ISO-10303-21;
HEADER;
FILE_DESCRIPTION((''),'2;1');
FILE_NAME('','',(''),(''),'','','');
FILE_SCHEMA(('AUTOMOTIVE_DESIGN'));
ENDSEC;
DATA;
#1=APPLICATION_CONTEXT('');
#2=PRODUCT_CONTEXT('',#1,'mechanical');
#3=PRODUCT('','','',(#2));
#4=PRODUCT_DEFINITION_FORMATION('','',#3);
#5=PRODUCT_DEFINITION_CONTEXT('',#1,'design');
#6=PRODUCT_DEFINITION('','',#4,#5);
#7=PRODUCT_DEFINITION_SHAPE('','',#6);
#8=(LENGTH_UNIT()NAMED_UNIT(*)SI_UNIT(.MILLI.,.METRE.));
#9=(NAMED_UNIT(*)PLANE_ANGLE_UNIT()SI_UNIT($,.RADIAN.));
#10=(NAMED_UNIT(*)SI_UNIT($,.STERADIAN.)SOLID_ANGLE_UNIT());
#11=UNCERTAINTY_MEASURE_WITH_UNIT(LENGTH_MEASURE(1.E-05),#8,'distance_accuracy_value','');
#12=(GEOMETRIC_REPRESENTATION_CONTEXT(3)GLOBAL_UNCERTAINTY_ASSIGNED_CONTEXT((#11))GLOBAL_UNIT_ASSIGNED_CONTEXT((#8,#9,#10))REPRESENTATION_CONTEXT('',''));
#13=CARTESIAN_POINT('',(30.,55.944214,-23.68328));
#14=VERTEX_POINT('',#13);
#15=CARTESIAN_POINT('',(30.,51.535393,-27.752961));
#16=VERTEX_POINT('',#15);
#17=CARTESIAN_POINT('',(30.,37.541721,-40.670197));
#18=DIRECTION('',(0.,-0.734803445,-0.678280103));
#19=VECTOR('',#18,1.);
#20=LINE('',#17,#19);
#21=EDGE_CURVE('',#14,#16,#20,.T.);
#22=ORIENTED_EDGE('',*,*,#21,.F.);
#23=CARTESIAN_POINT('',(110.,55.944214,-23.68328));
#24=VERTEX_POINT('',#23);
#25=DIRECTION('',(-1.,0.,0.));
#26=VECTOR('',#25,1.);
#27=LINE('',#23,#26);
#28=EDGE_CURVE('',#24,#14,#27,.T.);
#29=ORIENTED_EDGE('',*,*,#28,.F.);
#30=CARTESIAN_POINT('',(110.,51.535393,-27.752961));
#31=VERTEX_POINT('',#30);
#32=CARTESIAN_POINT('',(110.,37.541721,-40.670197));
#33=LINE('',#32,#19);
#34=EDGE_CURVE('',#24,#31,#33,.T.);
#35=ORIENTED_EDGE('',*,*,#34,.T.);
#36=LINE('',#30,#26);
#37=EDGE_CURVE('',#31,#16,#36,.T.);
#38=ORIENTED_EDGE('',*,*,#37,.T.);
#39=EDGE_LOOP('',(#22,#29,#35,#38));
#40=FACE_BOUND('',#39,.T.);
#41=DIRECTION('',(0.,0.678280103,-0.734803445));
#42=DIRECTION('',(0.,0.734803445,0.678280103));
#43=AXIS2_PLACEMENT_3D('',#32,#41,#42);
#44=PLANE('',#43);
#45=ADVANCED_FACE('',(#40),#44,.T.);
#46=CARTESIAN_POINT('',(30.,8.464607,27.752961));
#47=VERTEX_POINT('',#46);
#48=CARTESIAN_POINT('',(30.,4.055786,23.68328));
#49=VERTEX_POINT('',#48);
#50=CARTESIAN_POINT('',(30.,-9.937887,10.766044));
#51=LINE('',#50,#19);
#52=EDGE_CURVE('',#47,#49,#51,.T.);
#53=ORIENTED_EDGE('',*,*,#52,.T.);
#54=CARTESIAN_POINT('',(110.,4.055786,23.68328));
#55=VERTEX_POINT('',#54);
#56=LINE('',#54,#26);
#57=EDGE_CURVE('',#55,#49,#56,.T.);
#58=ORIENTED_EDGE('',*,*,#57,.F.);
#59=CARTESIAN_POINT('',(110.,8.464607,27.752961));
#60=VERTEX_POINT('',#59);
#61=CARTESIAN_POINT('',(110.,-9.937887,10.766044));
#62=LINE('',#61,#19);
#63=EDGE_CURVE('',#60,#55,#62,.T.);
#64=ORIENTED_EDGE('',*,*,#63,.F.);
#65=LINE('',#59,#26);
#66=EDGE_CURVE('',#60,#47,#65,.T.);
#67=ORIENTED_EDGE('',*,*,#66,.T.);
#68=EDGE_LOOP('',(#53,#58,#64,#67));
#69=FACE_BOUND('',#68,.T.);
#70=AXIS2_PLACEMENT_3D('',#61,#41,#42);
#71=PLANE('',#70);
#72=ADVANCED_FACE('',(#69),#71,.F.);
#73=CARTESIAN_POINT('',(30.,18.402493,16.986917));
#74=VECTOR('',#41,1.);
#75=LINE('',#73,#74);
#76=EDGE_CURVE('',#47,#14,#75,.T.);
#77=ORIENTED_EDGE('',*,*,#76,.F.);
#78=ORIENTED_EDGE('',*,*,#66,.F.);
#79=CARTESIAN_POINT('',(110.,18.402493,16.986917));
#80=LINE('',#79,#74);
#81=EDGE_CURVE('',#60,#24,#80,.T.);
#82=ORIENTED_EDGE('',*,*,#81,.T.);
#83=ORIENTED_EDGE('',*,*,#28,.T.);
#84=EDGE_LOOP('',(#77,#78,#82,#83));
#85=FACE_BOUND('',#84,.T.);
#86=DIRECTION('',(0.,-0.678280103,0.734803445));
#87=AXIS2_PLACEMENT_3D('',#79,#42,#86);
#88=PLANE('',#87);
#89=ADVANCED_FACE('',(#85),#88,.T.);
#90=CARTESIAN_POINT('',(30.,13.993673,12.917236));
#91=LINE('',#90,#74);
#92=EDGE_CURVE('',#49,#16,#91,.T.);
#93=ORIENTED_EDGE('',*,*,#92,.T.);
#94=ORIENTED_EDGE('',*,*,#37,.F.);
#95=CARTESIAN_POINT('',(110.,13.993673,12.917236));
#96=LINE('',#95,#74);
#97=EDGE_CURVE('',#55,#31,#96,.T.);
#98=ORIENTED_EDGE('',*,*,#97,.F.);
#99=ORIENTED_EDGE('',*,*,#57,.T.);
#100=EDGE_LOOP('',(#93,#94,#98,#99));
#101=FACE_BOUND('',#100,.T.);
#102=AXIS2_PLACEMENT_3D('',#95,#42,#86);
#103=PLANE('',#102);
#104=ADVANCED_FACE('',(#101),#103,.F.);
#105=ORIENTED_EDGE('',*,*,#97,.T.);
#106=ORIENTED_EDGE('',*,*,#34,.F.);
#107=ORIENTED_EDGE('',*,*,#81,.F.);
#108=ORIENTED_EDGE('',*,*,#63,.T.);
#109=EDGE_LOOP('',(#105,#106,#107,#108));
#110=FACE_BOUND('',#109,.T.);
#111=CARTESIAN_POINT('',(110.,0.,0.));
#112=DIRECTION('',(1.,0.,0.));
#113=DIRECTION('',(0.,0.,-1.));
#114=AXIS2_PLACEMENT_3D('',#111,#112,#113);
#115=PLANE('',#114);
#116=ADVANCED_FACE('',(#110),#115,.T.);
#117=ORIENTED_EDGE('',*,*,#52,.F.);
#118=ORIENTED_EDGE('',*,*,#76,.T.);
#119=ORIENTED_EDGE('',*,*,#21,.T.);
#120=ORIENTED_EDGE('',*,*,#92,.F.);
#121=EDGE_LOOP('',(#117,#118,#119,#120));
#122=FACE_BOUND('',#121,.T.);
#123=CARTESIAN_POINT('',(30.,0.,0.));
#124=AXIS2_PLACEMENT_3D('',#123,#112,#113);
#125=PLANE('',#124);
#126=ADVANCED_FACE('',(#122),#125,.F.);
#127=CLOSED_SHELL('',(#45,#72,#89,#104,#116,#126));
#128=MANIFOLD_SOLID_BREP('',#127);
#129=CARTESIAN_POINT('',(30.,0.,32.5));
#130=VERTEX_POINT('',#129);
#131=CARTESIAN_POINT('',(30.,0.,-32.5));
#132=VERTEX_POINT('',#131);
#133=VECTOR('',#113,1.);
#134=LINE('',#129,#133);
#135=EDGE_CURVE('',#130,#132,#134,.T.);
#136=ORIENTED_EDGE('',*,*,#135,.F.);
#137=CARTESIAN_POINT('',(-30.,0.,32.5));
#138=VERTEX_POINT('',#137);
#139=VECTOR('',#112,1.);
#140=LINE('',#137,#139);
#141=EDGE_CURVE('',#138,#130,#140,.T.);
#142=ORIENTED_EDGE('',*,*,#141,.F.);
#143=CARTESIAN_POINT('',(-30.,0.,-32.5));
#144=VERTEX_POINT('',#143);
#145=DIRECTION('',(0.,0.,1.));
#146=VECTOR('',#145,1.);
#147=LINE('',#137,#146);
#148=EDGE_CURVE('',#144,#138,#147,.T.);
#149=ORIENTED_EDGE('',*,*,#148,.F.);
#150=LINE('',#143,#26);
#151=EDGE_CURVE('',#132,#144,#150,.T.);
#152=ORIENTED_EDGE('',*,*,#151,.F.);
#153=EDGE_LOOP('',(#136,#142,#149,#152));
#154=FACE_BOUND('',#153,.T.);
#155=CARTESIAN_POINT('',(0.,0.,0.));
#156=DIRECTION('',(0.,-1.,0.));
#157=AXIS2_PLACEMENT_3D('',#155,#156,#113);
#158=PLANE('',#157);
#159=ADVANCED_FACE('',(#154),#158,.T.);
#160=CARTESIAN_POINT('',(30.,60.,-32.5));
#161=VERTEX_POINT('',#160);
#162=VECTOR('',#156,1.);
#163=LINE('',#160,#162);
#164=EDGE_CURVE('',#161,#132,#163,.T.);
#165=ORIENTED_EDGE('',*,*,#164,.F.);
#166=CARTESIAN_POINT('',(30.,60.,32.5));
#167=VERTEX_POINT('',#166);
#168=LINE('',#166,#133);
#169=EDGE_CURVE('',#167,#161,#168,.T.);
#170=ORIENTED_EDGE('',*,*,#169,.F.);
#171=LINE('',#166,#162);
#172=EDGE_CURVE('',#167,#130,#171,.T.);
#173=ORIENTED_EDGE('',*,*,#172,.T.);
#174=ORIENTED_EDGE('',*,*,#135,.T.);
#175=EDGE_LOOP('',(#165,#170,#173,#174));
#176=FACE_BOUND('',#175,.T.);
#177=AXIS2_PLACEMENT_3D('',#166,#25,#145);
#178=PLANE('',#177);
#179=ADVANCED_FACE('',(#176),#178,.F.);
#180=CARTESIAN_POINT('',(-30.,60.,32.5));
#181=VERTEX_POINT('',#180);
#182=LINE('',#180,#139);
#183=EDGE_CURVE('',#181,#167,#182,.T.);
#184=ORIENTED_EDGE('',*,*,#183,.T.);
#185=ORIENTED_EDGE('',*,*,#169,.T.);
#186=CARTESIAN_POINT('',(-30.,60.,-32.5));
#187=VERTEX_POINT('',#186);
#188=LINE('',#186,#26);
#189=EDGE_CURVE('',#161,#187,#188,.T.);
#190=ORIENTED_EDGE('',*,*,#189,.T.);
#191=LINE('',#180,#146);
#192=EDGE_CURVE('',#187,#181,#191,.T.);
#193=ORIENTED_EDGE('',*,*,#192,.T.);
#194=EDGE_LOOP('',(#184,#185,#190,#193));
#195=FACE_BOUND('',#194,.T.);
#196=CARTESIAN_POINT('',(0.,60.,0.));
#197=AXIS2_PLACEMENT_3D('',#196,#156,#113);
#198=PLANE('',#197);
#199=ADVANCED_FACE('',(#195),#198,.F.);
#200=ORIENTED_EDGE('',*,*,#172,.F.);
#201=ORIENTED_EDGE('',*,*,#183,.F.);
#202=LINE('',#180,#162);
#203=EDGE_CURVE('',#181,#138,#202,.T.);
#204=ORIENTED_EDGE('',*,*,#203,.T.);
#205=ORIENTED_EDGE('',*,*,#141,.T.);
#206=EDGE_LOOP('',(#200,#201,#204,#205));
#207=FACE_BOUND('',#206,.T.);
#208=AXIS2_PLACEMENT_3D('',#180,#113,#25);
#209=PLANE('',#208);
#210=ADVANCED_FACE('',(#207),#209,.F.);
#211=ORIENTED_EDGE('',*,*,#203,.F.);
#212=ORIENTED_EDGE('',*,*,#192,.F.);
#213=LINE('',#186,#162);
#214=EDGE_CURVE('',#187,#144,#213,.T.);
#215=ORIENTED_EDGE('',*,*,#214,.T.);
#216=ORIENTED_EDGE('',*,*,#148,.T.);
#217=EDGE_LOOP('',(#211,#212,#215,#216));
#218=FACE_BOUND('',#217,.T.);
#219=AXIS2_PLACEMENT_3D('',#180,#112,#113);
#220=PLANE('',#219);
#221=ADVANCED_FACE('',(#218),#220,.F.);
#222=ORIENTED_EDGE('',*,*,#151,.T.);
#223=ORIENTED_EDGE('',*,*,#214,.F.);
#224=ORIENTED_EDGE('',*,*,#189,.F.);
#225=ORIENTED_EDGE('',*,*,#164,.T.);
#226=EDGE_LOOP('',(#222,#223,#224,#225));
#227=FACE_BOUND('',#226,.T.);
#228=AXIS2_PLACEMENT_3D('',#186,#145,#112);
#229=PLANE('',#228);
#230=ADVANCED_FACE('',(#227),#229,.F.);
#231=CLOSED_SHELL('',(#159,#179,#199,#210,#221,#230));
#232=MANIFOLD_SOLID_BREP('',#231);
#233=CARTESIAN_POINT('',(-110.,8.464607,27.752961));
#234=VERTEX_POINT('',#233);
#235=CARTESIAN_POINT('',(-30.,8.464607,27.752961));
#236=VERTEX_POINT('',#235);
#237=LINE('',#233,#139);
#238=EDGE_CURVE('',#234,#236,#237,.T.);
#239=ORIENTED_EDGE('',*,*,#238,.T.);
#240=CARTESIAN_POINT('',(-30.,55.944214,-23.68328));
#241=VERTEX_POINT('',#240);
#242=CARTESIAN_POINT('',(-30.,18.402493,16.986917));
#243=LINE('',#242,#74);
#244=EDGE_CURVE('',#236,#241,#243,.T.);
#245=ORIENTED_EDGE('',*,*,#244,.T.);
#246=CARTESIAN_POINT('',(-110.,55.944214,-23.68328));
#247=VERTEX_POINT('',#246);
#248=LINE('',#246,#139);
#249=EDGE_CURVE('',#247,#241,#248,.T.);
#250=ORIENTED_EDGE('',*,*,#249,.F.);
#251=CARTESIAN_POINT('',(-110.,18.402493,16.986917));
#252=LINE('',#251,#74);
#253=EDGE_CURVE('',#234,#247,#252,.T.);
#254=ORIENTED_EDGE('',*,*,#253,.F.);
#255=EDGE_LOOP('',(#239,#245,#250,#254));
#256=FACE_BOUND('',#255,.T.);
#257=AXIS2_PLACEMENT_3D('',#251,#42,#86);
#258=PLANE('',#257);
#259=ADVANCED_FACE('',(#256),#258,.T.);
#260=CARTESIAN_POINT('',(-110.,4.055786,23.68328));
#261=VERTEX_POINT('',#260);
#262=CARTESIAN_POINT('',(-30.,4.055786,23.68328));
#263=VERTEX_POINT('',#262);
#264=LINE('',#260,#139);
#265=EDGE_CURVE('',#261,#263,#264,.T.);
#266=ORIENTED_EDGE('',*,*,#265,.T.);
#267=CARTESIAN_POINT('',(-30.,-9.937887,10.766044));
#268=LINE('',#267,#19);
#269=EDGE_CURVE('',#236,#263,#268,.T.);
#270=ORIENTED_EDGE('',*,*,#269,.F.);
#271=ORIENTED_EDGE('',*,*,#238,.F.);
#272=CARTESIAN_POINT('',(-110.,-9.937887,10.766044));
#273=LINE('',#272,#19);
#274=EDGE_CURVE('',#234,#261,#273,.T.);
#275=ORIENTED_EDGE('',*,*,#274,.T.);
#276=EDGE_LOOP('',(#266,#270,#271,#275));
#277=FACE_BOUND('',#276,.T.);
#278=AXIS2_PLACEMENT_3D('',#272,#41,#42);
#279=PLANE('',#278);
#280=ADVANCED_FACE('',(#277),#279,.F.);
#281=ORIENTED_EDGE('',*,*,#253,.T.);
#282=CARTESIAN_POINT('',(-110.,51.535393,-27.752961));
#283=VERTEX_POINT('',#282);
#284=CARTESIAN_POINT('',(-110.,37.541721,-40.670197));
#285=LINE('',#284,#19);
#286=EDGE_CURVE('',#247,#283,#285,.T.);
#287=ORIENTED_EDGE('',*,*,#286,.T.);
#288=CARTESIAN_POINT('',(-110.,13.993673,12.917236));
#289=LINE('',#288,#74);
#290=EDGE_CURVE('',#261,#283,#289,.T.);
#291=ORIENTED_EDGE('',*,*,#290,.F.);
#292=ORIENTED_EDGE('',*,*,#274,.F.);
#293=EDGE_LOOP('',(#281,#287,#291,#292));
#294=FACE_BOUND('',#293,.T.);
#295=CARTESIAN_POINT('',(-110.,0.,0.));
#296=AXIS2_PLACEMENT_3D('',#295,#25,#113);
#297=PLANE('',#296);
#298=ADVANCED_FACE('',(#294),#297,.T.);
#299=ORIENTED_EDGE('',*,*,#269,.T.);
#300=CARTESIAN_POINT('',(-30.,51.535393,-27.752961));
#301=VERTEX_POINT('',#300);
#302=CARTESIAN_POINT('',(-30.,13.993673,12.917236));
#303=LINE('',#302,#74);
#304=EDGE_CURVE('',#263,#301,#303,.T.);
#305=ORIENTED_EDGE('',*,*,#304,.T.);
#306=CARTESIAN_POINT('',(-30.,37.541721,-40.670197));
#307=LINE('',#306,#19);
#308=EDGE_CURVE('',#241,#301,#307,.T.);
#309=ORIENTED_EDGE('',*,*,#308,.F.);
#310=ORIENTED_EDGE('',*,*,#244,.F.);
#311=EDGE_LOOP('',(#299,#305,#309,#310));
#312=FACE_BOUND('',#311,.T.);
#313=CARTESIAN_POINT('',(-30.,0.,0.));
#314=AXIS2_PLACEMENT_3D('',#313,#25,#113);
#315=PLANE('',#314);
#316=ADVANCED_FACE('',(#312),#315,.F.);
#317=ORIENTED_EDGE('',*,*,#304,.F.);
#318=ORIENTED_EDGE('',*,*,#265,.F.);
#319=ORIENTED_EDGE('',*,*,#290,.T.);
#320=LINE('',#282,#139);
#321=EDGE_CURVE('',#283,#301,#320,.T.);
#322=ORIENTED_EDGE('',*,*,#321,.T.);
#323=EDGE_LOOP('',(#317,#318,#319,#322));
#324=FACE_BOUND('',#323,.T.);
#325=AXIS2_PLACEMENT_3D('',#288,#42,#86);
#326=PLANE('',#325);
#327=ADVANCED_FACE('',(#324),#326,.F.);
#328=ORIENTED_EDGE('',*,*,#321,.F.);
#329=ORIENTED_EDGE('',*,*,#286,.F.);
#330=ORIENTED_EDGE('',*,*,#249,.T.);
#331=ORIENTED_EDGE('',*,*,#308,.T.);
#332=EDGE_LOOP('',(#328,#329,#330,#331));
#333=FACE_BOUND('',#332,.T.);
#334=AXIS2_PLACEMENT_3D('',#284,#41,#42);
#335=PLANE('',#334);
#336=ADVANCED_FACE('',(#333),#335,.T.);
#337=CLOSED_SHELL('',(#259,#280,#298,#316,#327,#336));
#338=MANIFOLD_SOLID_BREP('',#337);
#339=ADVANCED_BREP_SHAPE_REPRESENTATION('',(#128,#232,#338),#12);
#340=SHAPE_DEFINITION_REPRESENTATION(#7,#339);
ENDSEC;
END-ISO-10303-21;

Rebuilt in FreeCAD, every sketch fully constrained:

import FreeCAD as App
import Part
import Sketcher
from FreeCAD import Vector

doc = App.newDocument("Part")
body = doc.addObject("PartDesign::Body", "Body")

# Sketch on XZ plane
sketch1 = body.newObject("Sketcher::SketchObject", "Sketch")
sketch1.AttachmentSupport = (doc.getObject("XZ_Plane"), [""])
sketch1.MapMode = "FlatFace"
sketch1.addGeometry([
    Part.LineSegment(Vector(-30, -32.5, 0), Vector(-30, 32.5, 0)),
    Part.LineSegment(Vector(-30, 32.5, 0), Vector(30, 32.5, 0)),
    Part.LineSegment(Vector(30, 32.5, 0), Vector(30, -32.5, 0)),
    Part.LineSegment(Vector(30, -32.5, 0), Vector(-30, -32.5, 0)),
], False)
sketch1.addConstraint([
    Sketcher.Constraint("Coincident", 0, 2, 1, 1),
    Sketcher.Constraint("Coincident", 1, 2, 2, 1),
    Sketcher.Constraint("Coincident", 2, 2, 3, 1),
    Sketcher.Constraint("Coincident", 3, 2, 0, 1),
    Sketcher.Constraint("Vertical", 0),
    Sketcher.Constraint("Horizontal", 1),
    Sketcher.Constraint("Vertical", 2),
    Sketcher.Constraint("Horizontal", 3),
    Sketcher.Constraint("Symmetric", 0, 2, 2, 2, -1, 1),
    Sketcher.Constraint("DistanceX", 1, 1, 1, 2, 60.0),
    Sketcher.Constraint("DistanceY", 0, 1, 0, 2, 65.0),
])
pad1 = body.newObject("PartDesign::Pad", "Pad")
pad1.Profile = sketch1
pad1.Length = 60
pad1.Reversed = True
body2 = doc.addObject("PartDesign::Body", "Body001")

# Sketch on YZ plane
sketch2 = body2.newObject("Sketcher::SketchObject", "Sketch001")
sketch2.AttachmentSupport = (doc.getObject("YZ_Plane001"), [""])
sketch2.MapMode = "FlatFace"
sketch2.AttachmentOffset = App.Placement(Vector(0, 0, 30), App.Rotation())
sketch2.addGeometry([
    Part.LineSegment(Vector(8.464607, 27.752961, 0), Vector(4.055786, 23.68328, 0)),
    Part.LineSegment(Vector(4.055786, 23.68328, 0), Vector(51.535393, -27.752961, 0)),
    Part.LineSegment(Vector(51.535393, -27.752961, 0), Vector(55.944214, -23.68328, 0)),
    Part.LineSegment(Vector(55.944214, -23.68328, 0), Vector(8.464607, 27.752961, 0)),
], False)
sketch2.addConstraint([
    Sketcher.Constraint("Coincident", 0, 2, 1, 1),
    Sketcher.Constraint("Coincident", 1, 2, 2, 1),
    Sketcher.Constraint("Coincident", 2, 2, 3, 1),
    Sketcher.Constraint("Coincident", 3, 2, 0, 1),
    Sketcher.Constraint("Perpendicular", 0, 1),
    Sketcher.Constraint("Perpendicular", 1, 2),
    Sketcher.Constraint("Perpendicular", 2, 3),
    Sketcher.Constraint("Distance", 0, 6.0),
    Sketcher.Constraint("Distance", 1, 70.0),
    Sketcher.Constraint("DistanceY", -1, 1, 0, 2, 23.68328),
    Sketcher.Constraint("DistanceY", 1, 2, -1, 1, 27.752961),
    Sketcher.Constraint("DistanceX", -1, 1, 0, 2, 4.055786),
])
pad2 = body2.newObject("PartDesign::Pad", "Pad001")
pad2.Profile = sketch2
pad2.Length = 80
body3 = doc.addObject("PartDesign::Body", "Body002")
doc.recompute()

mirroring = doc.addObject("Part::Mirroring", "Mirroring")
mirroring.Source = body2
mirroring.Base = Vector(0, 0, 0)
mirroring.Normal = Vector(1, 0, 0)
body3.BaseFeature = mirroring
doc.recompute()
mirroring.Visibility = False

doc.recompute()
